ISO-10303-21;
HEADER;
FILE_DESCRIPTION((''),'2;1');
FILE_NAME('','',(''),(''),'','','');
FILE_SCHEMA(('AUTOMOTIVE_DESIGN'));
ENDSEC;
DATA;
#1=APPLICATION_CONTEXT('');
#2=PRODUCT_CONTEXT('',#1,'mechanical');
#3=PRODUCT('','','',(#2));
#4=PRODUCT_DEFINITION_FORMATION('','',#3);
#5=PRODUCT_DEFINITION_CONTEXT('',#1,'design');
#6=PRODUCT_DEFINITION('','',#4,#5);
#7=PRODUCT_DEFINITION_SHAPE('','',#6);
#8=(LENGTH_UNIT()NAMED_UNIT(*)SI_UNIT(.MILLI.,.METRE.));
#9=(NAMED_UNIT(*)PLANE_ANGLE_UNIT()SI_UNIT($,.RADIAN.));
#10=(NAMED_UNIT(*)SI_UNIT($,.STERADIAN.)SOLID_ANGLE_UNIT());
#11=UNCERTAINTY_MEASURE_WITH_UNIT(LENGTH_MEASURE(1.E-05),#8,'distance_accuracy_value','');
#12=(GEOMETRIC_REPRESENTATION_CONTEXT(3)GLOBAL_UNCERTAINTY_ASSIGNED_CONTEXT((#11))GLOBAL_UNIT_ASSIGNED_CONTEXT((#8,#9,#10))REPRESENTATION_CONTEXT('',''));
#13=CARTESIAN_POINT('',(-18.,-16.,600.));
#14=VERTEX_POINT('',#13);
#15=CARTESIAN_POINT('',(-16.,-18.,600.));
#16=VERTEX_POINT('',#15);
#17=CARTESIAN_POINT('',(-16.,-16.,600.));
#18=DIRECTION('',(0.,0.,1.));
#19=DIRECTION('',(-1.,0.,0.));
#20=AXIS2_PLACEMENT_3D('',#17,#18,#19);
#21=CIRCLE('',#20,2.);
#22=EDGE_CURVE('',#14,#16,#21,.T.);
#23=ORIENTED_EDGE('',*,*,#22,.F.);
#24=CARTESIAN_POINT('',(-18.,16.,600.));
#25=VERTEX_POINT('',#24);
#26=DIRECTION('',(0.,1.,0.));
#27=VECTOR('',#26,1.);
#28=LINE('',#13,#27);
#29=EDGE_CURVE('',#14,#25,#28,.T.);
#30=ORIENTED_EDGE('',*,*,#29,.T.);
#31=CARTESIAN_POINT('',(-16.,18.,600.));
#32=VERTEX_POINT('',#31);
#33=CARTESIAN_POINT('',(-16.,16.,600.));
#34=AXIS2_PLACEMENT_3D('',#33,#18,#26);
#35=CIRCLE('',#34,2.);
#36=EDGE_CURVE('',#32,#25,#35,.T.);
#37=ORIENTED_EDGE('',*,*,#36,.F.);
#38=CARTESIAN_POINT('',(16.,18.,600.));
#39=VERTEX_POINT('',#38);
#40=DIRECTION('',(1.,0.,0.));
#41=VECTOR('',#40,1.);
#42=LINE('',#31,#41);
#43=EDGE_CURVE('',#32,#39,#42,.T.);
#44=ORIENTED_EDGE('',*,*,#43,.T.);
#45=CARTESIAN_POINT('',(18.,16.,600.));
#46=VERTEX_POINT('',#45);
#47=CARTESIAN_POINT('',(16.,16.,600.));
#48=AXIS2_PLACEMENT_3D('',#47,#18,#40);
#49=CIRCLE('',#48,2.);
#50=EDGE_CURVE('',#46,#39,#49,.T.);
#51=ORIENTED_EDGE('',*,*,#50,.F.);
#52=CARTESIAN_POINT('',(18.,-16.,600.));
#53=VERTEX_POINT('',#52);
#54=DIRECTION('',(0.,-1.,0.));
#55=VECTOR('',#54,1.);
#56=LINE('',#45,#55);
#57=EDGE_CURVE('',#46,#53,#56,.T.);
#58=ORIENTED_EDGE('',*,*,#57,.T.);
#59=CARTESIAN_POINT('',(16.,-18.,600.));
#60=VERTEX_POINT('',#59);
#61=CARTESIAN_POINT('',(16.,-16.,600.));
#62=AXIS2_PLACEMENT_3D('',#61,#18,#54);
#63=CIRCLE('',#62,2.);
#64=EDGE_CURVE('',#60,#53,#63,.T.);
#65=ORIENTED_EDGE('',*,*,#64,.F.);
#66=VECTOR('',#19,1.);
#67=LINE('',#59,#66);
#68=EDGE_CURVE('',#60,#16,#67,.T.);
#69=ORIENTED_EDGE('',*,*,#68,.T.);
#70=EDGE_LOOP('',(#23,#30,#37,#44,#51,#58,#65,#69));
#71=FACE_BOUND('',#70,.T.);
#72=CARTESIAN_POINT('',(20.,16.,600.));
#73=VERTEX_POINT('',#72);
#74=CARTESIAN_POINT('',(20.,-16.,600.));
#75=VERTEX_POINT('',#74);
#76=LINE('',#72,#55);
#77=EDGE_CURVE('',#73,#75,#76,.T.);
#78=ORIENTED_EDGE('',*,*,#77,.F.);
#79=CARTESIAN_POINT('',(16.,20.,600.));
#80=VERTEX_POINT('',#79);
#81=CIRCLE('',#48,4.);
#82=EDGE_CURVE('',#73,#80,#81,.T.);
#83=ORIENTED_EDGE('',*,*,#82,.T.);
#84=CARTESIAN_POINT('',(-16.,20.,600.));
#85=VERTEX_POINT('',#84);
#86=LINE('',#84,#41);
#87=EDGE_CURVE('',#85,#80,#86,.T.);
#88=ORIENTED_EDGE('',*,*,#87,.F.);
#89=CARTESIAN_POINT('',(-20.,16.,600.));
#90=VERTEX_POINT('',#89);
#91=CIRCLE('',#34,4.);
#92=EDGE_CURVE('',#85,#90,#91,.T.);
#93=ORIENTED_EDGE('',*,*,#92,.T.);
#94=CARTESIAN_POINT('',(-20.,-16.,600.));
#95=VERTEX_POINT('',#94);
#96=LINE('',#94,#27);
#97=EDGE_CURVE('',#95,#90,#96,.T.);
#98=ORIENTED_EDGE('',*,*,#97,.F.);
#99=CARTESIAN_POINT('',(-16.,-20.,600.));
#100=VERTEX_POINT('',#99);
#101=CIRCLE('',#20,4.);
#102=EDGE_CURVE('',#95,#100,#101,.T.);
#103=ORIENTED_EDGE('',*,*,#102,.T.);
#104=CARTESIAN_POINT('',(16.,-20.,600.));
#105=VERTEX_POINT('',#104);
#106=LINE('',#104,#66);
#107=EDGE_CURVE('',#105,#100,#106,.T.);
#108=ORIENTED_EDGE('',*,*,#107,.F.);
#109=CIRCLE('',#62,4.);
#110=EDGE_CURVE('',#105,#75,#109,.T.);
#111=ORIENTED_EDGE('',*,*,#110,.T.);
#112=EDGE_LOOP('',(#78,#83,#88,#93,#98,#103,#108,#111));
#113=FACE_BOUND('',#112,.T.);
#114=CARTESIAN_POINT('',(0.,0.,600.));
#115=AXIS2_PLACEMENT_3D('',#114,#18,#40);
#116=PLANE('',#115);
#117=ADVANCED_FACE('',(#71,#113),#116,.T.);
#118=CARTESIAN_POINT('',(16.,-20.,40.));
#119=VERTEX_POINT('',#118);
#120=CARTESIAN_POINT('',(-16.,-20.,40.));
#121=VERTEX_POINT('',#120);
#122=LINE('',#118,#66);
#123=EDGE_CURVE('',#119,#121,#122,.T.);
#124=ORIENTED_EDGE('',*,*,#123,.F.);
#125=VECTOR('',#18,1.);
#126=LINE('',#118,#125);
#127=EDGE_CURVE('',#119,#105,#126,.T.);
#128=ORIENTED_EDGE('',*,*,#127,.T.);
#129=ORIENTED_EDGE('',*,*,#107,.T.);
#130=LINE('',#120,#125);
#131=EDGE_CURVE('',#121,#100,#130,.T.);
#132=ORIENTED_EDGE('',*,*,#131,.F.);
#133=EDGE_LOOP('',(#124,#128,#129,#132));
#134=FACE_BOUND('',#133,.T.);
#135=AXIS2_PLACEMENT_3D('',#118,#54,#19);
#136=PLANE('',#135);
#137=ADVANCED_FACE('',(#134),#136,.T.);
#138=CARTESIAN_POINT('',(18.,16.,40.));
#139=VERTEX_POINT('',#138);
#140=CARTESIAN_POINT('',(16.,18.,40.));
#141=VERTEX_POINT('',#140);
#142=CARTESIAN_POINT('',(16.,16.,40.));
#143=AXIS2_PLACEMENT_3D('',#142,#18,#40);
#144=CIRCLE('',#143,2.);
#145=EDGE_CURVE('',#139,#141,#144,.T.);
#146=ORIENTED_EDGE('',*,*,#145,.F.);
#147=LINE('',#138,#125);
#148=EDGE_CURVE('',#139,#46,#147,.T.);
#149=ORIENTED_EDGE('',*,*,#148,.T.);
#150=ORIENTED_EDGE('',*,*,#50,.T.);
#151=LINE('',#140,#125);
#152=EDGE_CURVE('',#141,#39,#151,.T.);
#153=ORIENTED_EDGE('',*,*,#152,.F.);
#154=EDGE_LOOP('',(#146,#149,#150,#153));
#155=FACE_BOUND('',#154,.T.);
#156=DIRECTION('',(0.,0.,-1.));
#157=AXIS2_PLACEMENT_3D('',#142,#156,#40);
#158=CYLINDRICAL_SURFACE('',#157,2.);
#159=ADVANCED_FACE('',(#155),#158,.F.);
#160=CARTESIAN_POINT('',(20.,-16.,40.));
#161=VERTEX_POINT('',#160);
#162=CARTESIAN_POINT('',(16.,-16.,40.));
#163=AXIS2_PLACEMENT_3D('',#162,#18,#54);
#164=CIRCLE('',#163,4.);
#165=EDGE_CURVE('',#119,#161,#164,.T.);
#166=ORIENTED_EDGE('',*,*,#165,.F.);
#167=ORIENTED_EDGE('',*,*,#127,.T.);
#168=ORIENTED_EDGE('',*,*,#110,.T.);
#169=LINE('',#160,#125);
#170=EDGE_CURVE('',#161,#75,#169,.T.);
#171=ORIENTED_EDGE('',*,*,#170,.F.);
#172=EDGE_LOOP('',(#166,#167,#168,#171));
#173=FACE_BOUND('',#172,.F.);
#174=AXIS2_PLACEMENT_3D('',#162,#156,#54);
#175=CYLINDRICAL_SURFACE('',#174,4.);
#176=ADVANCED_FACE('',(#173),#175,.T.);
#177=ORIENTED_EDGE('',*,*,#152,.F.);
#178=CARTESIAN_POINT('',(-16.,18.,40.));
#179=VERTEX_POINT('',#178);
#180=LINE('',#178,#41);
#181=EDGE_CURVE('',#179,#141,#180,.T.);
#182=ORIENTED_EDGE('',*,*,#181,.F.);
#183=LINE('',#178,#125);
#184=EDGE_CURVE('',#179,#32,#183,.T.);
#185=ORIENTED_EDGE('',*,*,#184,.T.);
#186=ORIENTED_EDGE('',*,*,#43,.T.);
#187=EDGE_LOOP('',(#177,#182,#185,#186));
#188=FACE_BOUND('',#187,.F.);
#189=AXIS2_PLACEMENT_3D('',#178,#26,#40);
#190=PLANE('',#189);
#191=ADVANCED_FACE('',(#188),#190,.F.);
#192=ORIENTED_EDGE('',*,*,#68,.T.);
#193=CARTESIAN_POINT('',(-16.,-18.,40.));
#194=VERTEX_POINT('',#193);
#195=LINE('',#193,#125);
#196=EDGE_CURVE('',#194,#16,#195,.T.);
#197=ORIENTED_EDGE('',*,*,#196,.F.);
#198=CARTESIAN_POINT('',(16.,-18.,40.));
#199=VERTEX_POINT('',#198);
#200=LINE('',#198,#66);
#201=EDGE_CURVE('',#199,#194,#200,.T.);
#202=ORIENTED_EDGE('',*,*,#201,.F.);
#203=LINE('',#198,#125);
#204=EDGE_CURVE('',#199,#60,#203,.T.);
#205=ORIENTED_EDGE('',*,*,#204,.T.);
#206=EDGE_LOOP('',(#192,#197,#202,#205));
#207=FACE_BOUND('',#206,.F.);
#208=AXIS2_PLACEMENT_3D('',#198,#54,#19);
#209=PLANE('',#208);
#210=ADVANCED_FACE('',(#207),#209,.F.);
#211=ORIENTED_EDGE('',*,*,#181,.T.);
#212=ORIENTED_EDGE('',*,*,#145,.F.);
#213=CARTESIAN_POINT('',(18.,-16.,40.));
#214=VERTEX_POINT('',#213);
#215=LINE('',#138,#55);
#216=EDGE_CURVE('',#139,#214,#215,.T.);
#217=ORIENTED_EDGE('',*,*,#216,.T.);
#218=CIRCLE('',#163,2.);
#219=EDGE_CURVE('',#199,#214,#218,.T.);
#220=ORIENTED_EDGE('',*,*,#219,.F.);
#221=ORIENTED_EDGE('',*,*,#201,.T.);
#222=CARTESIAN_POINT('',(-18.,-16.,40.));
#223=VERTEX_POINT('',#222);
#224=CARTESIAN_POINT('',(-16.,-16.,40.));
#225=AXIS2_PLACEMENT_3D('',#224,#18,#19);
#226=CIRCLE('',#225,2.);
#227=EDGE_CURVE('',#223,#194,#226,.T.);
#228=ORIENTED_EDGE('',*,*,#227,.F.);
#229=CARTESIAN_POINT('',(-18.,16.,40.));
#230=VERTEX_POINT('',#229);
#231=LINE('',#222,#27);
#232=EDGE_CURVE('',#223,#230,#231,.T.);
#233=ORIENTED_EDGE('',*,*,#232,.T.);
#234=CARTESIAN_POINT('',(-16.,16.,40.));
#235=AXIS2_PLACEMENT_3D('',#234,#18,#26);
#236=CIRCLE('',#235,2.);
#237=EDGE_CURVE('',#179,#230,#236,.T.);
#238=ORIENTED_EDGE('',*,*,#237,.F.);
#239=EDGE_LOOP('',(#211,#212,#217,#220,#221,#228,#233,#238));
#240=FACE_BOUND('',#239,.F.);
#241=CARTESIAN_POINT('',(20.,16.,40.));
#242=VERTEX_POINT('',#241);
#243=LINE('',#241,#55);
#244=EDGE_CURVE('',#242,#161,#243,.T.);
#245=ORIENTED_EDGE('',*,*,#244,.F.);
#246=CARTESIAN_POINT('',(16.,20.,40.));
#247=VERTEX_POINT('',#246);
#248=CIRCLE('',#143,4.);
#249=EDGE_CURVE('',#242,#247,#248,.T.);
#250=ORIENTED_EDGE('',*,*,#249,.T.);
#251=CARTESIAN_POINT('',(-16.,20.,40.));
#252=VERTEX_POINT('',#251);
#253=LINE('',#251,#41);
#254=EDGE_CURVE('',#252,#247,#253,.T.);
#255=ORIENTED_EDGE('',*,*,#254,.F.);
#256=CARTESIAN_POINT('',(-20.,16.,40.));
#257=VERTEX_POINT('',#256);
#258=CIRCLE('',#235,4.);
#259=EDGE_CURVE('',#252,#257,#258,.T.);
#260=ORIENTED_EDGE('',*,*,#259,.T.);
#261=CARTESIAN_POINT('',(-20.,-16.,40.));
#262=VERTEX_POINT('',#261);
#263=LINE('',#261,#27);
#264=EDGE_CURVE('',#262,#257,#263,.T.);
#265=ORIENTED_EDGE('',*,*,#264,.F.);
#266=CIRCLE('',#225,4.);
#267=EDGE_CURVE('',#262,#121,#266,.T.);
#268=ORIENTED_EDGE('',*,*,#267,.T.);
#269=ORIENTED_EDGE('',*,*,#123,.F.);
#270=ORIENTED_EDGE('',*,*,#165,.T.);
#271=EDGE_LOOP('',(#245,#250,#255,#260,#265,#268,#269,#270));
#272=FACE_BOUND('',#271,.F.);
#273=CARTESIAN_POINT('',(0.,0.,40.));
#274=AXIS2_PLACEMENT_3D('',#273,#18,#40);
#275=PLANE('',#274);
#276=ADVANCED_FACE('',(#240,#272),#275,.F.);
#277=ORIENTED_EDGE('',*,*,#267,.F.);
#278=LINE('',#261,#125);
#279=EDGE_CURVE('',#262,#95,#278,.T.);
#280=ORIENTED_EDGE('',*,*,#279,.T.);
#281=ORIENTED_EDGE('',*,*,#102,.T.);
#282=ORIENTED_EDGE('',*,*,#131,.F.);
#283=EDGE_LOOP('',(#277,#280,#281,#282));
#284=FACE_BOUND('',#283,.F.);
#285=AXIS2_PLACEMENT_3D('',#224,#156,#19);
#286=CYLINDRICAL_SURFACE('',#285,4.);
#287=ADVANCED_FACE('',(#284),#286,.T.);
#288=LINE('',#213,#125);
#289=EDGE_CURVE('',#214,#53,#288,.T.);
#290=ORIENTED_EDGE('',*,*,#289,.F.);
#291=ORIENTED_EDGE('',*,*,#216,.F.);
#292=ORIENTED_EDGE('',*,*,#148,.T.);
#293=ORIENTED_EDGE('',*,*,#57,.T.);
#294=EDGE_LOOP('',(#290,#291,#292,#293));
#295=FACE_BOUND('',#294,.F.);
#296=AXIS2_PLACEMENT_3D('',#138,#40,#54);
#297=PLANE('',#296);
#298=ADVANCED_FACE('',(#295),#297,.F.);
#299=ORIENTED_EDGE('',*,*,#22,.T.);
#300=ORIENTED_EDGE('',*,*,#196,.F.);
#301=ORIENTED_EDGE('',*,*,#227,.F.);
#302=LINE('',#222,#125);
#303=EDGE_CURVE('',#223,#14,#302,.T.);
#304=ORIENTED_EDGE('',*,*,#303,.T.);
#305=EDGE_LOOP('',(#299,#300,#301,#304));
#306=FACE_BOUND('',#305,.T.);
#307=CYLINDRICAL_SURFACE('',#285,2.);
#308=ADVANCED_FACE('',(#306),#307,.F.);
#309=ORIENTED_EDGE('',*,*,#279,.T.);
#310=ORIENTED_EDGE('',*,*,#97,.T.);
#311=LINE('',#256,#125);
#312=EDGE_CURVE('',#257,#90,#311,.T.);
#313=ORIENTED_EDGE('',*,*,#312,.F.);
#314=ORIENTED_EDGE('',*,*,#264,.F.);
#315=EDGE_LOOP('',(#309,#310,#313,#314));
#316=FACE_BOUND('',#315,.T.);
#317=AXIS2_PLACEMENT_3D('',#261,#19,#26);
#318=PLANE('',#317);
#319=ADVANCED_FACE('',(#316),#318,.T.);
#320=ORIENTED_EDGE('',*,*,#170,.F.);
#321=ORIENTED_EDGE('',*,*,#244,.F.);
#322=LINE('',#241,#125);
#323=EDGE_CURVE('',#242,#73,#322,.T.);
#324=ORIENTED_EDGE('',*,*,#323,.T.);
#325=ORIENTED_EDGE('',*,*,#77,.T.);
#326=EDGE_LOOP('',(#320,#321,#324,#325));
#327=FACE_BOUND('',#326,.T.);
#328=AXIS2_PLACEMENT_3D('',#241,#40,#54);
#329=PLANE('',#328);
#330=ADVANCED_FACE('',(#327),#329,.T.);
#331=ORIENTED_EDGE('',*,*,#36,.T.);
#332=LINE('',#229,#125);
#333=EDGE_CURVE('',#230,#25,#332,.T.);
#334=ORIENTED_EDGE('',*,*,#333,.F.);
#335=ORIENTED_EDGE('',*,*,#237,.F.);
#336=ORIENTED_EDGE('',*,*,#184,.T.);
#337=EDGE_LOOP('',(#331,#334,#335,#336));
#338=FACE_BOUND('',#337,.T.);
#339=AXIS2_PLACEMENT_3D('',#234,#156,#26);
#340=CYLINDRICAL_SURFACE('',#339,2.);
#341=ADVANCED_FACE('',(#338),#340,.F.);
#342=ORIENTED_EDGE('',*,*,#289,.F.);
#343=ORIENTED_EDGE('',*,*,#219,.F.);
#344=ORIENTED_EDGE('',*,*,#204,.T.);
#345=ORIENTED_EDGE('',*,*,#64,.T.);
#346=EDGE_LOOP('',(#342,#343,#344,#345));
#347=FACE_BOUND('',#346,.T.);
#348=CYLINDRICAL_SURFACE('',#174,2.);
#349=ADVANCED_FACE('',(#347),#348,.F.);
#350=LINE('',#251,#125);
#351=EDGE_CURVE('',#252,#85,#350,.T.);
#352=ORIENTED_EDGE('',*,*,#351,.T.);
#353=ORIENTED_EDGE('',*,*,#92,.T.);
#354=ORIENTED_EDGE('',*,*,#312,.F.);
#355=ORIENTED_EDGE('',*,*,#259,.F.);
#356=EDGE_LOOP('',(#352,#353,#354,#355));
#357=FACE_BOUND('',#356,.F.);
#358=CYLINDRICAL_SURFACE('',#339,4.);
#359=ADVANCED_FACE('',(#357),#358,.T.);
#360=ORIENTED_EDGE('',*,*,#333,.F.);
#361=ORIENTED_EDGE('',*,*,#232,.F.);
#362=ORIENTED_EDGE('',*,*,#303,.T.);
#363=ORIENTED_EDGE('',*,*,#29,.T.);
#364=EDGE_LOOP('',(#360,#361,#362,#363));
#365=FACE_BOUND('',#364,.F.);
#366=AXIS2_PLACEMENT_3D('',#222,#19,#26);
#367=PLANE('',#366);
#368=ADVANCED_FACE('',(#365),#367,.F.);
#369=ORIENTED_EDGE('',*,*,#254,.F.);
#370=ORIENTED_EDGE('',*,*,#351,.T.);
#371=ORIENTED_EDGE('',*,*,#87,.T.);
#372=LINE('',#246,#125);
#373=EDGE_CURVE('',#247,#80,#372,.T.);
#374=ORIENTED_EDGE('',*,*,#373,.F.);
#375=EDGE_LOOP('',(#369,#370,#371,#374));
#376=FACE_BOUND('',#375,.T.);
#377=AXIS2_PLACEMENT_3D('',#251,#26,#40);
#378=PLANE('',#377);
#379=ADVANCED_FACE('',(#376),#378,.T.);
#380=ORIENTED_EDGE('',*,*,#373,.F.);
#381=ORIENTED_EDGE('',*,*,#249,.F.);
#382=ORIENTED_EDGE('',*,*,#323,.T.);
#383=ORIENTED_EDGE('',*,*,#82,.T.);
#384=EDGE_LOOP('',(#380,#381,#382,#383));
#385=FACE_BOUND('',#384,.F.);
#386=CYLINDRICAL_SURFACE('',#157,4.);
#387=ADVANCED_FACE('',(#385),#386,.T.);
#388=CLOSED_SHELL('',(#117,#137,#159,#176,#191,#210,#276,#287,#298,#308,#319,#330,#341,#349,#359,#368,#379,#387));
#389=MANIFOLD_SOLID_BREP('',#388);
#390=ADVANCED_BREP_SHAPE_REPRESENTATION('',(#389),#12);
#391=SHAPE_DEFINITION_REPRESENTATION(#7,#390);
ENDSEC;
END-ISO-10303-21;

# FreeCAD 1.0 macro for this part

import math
import FreeCAD as App
import Part
import Sketcher

V = App.Vector
Q = App.Units.Quantity

doc = App.newDocument("Part")
body = doc.addObject("PartDesign::Body", "Body")

# Sketch on XY plane
sketch1 = body.newObject("Sketcher::SketchObject", "Sketch")
sketch1.AttachmentSupport = (doc.getObject("XY_Plane"), [""])
sketch1.MapMode = "FlatFace"
sketch1.AttachmentOffset = App.Placement(V(0, 0, 40), App.Rotation())
sketch1.addGeometry([
    Part.LineSegment(V(-20, 16, 0), V(-20, -16, 0)),  # 0
    Part.ArcOfCircle(Part.Circle(V(-16, -16, 0), V(0, 0, 1), 4), math.radians(180), math.radians(270)),  # 1
    Part.LineSegment(V(-16, -20, 0), V(16, -20, 0)),  # 2
    Part.ArcOfCircle(Part.Circle(V(16, -16, 0), V(0, 0, 1), 4), math.radians(-90), math.radians(0)),  # 3
    Part.LineSegment(V(20, -16, 0), V(20, 16, 0)),  # 4
    Part.ArcOfCircle(Part.Circle(V(16, 16, 0), V(0, 0, 1), 4), math.radians(0), math.radians(90)),  # 5
    Part.LineSegment(V(16, 20, 0), V(-16, 20, 0)),  # 6
    Part.ArcOfCircle(Part.Circle(V(-16, 16, 0), V(0, 0, 1), 4), math.radians(90), math.radians(180)),  # 7
    Part.ArcOfCircle(Part.Circle(V(-16, 16, 0), V(0, 0, 1), 2), math.radians(90), math.radians(180)),  # 8
    Part.LineSegment(V(-16, 18, 0), V(16, 18, 0)),  # 9
    Part.ArcOfCircle(Part.Circle(V(16, 16, 0), V(0, 0, 1), 2), math.radians(0), math.radians(90)),  # 10
    Part.LineSegment(V(18, 16, 0), V(18, -16, 0)),  # 11
    Part.ArcOfCircle(Part.Circle(V(16, -16, 0), V(0, 0, 1), 2), math.radians(-90), math.radians(0)),  # 12
    Part.LineSegment(V(16, -18, 0), V(-16, -18, 0)),  # 13
    Part.ArcOfCircle(Part.Circle(V(-16, -16, 0), V(0, 0, 1), 2), math.radians(180), math.radians(270)),  # 14
    Part.LineSegment(V(-18, -16, 0), V(-18, 16, 0)),  # 15
], False)
sketch1.addConstraint([
    Sketcher.Constraint("Tangent", 0, 2, 1, 1),
    Sketcher.Constraint("Tangent", 1, 2, 2, 1),
    Sketcher.Constraint("Tangent", 2, 2, 3, 1),
    Sketcher.Constraint("Tangent", 3, 2, 4, 1),
    Sketcher.Constraint("Tangent", 4, 2, 5, 1),
    Sketcher.Constraint("Tangent", 5, 2, 6, 1),
    Sketcher.Constraint("Tangent", 6, 2, 7, 1),
    Sketcher.Constraint("Tangent", 7, 2, 0, 1),
    Sketcher.Constraint("Tangent", 8, 1, 9, 1),
    Sketcher.Constraint("Tangent", 9, 2, 10, 2),
    Sketcher.Constraint("Tangent", 10, 1, 11, 1),
    Sketcher.Constraint("Tangent", 11, 2, 12, 2),
    Sketcher.Constraint("Tangent", 12, 1, 13, 1),
    Sketcher.Constraint("Tangent", 13, 2, 14, 2),
    Sketcher.Constraint("Tangent", 14, 1, 15, 1),
    Sketcher.Constraint("Tangent", 15, 2, 8, 2),
    Sketcher.Constraint("Vertical", 0),
    Sketcher.Constraint("Horizontal", 2),
    Sketcher.Constraint("Vertical", 4),
    Sketcher.Constraint("Horizontal", 6),
    Sketcher.Constraint("Horizontal", 9),
    Sketcher.Constraint("Vertical", 11),
    Sketcher.Constraint("Horizontal", 13),
    Sketcher.Constraint("Vertical", 15),
    Sketcher.Constraint("Coincident", 8, 3, 7, 3),
    Sketcher.Constraint("Coincident", 10, 3, 5, 3),
    Sketcher.Constraint("Coincident", 12, 3, 3, 3),
    Sketcher.Constraint("Equal", 1, 3),
    Sketcher.Constraint("Equal", 3, 5),
    Sketcher.Constraint("Equal", 5, 7),
    Sketcher.Constraint("Equal", 12, 14),
    Sketcher.Constraint("Symmetric", 1, 3, 5, 3, -1, 1),
    Sketcher.Constraint("Equal", 13, 0),
    Sketcher.Constraint("Radius", 1, Q("4 mm")),
    Sketcher.Constraint("Radius", 8, Q("2 mm")),
    Sketcher.Constraint("DistanceX", 0, 2, -1, 1, Q("20 mm")),
])
pad1 = body.newObject("PartDesign::Pad", "Pad")
pad1.Profile = sketch1
pad1.Length = 560

doc.recompute()
